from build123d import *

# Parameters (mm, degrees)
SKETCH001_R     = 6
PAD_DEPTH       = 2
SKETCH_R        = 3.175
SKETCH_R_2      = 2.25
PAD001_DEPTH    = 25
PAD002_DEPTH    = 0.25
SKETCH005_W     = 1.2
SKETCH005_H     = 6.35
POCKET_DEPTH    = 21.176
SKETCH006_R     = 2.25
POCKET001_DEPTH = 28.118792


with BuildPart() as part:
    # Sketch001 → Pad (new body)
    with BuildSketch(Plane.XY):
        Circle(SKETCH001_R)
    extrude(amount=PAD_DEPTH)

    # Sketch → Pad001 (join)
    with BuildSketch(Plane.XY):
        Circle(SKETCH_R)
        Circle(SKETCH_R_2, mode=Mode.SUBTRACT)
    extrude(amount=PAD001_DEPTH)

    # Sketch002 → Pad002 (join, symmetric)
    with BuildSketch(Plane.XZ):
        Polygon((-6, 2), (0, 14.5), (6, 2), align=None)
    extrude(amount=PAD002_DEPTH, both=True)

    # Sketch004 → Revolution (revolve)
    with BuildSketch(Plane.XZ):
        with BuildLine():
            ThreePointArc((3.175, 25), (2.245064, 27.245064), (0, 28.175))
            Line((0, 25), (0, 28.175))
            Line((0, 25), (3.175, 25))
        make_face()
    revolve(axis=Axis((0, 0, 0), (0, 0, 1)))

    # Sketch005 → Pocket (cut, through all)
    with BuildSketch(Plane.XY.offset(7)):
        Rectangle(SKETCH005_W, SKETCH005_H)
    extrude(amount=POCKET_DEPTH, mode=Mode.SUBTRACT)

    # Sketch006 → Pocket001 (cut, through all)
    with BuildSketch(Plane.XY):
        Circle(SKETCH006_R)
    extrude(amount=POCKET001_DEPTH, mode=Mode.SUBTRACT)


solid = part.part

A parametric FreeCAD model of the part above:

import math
import FreeCAD as App
import Part
import Sketcher

V = App.Vector

doc = App.newDocument("Part")
body = doc.addObject("PartDesign::Body", "Body")

# Sketch on XY plane
sketch1 = doc.addObject("Sketcher::SketchObject", "Sketch")
body.addObject(sketch1)
sketch1.AttachmentSupport = (doc.XY_Plane, [""])
sketch1.MapMode = "FlatFace"
sketch1.addGeometry(Part.Circle(V(0, 0, 0), V(0, 0, 1), 6), False)
sketch1.addConstraint([
    Sketcher.Constraint("Coincident", 0, 3, -1, 1),
    Sketcher.Constraint("Diameter", 0, 12.0),
])
pad1 = doc.addObject("PartDesign::Pad", "Pad")
body.addObject(pad1)
pad1.Profile = sketch1
pad1.Length = 2

# Sketch on XY plane
sketch2 = doc.addObject("Sketcher::SketchObject", "Sketch001")
body.addObject(sketch2)
sketch2.AttachmentSupport = (doc.XY_Plane, [""])
sketch2.MapMode = "FlatFace"
sketch2.addGeometry([
    Part.Circle(V(0, 0, 0), V(0, 0, 1), 3.2),
    Part.Circle(V(0, 0, 0), V(0, 0, 1), 2.2),
], False)
sketch2.addConstraint([
    Sketcher.Constraint("Coincident", 0, 3, -1, 1),
    Sketcher.Constraint("Coincident", 1, 3, -1, 1),
    Sketcher.Constraint("Diameter", 1, 4.5),
    Sketcher.Constraint("Diameter", 0, 6.35),
])
pad2 = doc.addObject("PartDesign::Pad", "Pad001")
body.addObject(pad2)
pad2.Profile = sketch2
pad2.Length = 25

# Sketch on XZ plane
sketch3 = doc.addObject("Sketcher::SketchObject", "Sketch002")
body.addObject(sketch3)
sketch3.AttachmentSupport = (doc.XZ_Plane, [""])
sketch3.MapMode = "FlatFace"
sketch3.addGeometry([
    Part.LineSegment(V(0, 14, 0), V(-6, 2, 0)),
    Part.LineSegment(V(-6, 2, 0), V(6, 2, 0)),
    Part.LineSegment(V(6, 2, 0), V(0, 14, 0)),
], False)
sketch3.addConstraint([
    Sketcher.Constraint("Coincident", 0, 2, 1, 1),
    Sketcher.Constraint("Coincident", 1, 2, 2, 1),
    Sketcher.Constraint("Coincident", 2, 2, 0, 1),
    Sketcher.Constraint("Horizontal", 1),
    Sketcher.Constraint("PointOnObject", 2, 2, -2),
    Sketcher.Constraint("Equal", 0, 2),
    Sketcher.Constraint("DistanceX", 1, 1, 1, 2, 12.0),
    Sketcher.Constraint("DistanceY", -1, 1, 0, 2, 2.0),
    Sketcher.Constraint("DistanceY", -1, 1, 2, 2, 14.5),
])
pad3 = doc.addObject("PartDesign::Pad", "Pad002")
body.addObject(pad3)
pad3.Profile = sketch3
pad3.Length = 0.5
pad3.Midplane = True

# Sketch on XZ plane
sketch4 = doc.addObject("Sketcher::SketchObject", "Sketch003")
body.addObject(sketch4)
sketch4.AttachmentSupport = (doc.XZ_Plane, [""])
sketch4.MapMode = "FlatFace"
sketch4.addGeometry([
    Part.ArcOfCircle(Part.Circle(V(0, 25, 0), V(0, 0, 1), 3.2), math.radians(0), math.radians(90)),
    Part.LineSegment(V(0, 28.2, 0), V(0, 25, 0)),
    Part.LineSegment(V(0, 25, 0), V(3.2, 25, 0)),
], False)
sketch4.addConstraint([
    Sketcher.Constraint("Coincident", 0, 2, 1, 1),
    Sketcher.Constraint("Coincident", 1, 2, 2, 1),
    Sketcher.Constraint("Coincident", 2, 2, 0, 1),
    Sketcher.Constraint("Vertical", 1),
    Sketcher.Constraint("Horizontal", 2),
    Sketcher.Constraint("Coincident", 1, 2, 0, 3),
    Sketcher.Constraint("PointOnObject", 0, 3, -2),
    Sketcher.Constraint("DistanceY", -1, 1, 0, 3, 25.0),
    Sketcher.Constraint("Radius", 0, 3.175),
])
revolution = doc.addObject("PartDesign::Revolution", "Revolution")
body.addObject(revolution)
revolution.Profile = sketch4
revolution.ReferenceAxis = (sketch4, ["V_Axis"])
revolution.Angle = 360

# Sketch on XY plane
sketch5 = doc.addObject("Sketcher::SketchObject", "Sketch004")
body.addObject(sketch5)
sketch5.AttachmentSupport = (doc.XY_Plane, [""])
sketch5.MapMode = "FlatFace"
sketch5.AttachmentOffset = App.Placement(V(0, 0, 7), App.Rotation())
sketch5.addGeometry([
    Part.LineSegment(V(-0.6, 3.2, 0), V(-0.6, -3.2, 0)),
    Part.LineSegment(V(-0.6, -3.2, 0), V(0.6, -3.2, 0)),
    Part.LineSegment(V(0.6, -3.2, 0), V(0.6, 3.2, 0)),
    Part.LineSegment(V(0.6, 3.2, 0), V(-0.6, 3.2, 0)),
], False)
sketch5.addConstraint([
    Sketcher.Constraint("Coincident", 0, 2, 1, 1),
    Sketcher.Constraint("Coincident", 1, 2, 2, 1),
    Sketcher.Constraint("Coincident", 2, 2, 3, 1),
    Sketcher.Constraint("Coincident", 3, 2, 0, 1),
    Sketcher.Constraint("Vertical", 0),
    Sketcher.Constraint("Horizontal", 1),
    Sketcher.Constraint("Vertical", 2),
    Sketcher.Constraint("Horizontal", 3),
    Sketcher.Constraint("Symmetric", 0, 2, 2, 2, -1, 1),
    Sketcher.Constraint("DistanceX", 1, 1, 1, 2, 1.2),
    Sketcher.Constraint("DistanceY", 0, 2, 0, 1, 6.35),
])
pocket1 = doc.addObject("PartDesign::Pocket", "Pocket")
body.addObject(pocket1)
pocket1.Profile = sketch5
pocket1.Type = "ThroughAll"
pocket1.Reversed = True

# Sketch on XY plane
sketch6 = doc.addObject("Sketcher::SketchObject", "Sketch005")
body.addObject(sketch6)
sketch6.AttachmentSupport = (doc.XY_Plane, [""])
sketch6.MapMode = "FlatFace"
sketch6.addGeometry(Part.Circle(V(0, 0, 0), V(0, 0, 1), 2.2), False)
sketch6.addConstraint([
    Sketcher.Constraint("Coincident", 0, 3, -1, 1),
    Sketcher.Constraint("Diameter", 0, 4.5),
])
pocket2 = doc.addObject("PartDesign::Pocket", "Pocket001")
body.addObject(pocket2)
pocket2.Profile = sketch6
pocket2.Type = "ThroughAll"
pocket2.Reversed = True

doc.recompute()
